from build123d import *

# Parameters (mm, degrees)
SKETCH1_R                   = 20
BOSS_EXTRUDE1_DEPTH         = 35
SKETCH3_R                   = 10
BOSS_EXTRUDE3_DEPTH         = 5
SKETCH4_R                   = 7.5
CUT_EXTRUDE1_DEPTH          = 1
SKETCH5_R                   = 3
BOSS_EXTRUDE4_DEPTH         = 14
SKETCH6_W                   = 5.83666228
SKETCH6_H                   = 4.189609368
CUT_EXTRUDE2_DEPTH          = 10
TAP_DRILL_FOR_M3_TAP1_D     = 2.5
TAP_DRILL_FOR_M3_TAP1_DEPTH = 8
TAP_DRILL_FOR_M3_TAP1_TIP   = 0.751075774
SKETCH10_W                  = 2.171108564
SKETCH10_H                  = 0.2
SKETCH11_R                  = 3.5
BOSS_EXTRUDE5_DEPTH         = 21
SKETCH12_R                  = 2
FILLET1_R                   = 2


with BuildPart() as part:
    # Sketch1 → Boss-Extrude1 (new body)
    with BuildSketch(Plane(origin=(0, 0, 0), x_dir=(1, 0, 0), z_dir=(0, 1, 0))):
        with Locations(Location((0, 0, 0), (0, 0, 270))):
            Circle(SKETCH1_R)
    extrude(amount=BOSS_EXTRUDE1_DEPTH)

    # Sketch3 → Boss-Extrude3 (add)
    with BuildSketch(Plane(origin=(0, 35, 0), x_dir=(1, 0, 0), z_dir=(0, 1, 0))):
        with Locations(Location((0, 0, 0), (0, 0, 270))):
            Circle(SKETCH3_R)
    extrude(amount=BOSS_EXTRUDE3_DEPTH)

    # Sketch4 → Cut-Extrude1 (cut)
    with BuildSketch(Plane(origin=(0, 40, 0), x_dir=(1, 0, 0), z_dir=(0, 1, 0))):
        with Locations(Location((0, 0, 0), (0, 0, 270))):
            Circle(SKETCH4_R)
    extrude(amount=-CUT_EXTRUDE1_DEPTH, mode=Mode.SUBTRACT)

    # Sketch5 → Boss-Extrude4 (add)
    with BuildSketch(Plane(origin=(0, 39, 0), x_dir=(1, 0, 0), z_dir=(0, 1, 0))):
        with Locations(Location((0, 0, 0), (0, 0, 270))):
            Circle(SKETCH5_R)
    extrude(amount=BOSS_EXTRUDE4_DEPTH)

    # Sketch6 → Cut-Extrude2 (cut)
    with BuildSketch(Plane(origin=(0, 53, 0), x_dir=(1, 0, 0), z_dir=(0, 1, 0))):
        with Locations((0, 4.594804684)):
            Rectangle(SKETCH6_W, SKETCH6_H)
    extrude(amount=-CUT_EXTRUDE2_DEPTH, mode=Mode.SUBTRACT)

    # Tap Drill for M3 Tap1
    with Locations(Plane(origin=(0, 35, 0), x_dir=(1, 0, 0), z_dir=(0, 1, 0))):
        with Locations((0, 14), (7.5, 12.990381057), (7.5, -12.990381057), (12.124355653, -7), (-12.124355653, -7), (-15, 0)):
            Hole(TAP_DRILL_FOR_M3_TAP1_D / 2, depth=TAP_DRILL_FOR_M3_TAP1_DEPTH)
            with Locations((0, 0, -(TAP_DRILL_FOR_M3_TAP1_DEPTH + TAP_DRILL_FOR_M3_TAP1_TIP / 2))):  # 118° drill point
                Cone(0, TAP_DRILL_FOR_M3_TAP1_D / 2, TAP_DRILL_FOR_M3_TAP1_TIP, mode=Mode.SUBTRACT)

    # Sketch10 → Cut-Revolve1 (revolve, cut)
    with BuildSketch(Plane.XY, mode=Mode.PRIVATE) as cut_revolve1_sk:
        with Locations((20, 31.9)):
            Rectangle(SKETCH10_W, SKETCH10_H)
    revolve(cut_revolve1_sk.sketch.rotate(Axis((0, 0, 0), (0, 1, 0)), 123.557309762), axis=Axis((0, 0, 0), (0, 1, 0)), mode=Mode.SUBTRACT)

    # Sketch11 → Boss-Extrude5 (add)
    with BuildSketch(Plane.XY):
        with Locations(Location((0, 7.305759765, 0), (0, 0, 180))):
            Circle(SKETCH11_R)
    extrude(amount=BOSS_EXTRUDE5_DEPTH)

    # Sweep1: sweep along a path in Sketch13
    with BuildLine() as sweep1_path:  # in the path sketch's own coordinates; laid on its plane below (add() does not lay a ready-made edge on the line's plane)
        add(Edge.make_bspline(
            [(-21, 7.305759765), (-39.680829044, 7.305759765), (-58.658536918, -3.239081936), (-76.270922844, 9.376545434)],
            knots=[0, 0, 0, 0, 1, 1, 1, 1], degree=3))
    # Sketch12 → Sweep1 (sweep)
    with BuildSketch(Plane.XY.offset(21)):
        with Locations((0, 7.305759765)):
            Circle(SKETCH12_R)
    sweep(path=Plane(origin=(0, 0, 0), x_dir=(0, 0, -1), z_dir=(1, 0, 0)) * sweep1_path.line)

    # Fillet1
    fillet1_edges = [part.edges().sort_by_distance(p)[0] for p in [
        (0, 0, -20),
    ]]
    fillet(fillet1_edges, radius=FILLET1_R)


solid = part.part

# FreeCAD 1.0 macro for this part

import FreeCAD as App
import Part
import Sketcher

V = App.Vector


def edges_at(feature, points):
    """Names of the edges that pass closest to the given points."""
    edges = feature.Shape.Edges
    near = lambda p: min(range(len(edges)), key=lambda i: edges[i].distToShape(Part.Vertex(*p))[0])
    return sorted({f"Edge{near(p) + 1}" for p in points})

doc = App.newDocument("Part")
params = doc.addObject("Spreadsheet::Sheet", "Params")
for row, (alias, value) in enumerate([
    ("sketch1_diameter", "40 mm"),
    ("pad1_length", "35 mm"),
    ("sketch2_diameter", "20 mm"),
    ("pad2_length", "5 mm"),
    ("sketch3_diameter", "15 mm"),
    ("pocket1_length", "1 mm"),
    ("sketch4_diameter", "6 mm"),
    ("pad3_length", "14 mm"),
    ("pocket2_length", "10 mm"),
    ("sketch6_diameter", "2.5 mm"),
    ("hole_diameter", "2.5 mm"),
    ("hole_depth", "8 mm"),
    ("sketch7_height", "0.2 mm"),
    ("groove_angle", "360 deg"),
    ("sketch8_diameter", "7 mm"),
    ("pad4_length", "21 mm"),
    ("sketch9_diameter", "4 mm"),
    ("fillet_radius", "2 mm"),
], start=1):
    params.set(f"A{row}", alias)
    params.set(f"B{row}", "=" + value)
    params.setAlias(f"B{row}", alias)

body = doc.addObject("PartDesign::Body", "Body")

sketch1 = body.newObject("Sketcher::SketchObject", "Sketch")
sketch1.AttachmentSupport = (doc.getObject("XZ_Plane"), [""])
sketch1.MapMode = "FlatFace"
sketch1.addGeometry(Part.Circle(V(0, 0, 0), V(0, 0, 1), 20), False)
sketch1.addConstraint([
    Sketcher.Constraint("Coincident", 0, 3, -1, 1),
    Sketcher.Constraint("Diameter", 0, 40.0),
])
sketch1.setExpression("Constraints[1]", "Params.sketch1_diameter")
pad1 = body.newObject("PartDesign::Pad", "Pad")
pad1.Profile = sketch1
pad1.setExpression("Length", "Params.pad1_length")
pad1.Reversed = True

sketch2 = body.newObject("Sketcher::SketchObject", "Sketch001")
sketch2.AttachmentSupport = (doc.getObject("XZ_Plane"), [""])
sketch2.MapMode = "FlatFace"
sketch2.AttachmentOffset = App.Placement(V(0, 0, -35), App.Rotation())
sketch2.addGeometry(Part.Circle(V(0, 0, 0), V(0, 0, 1), 10), False)
sketch2.addConstraint([
    Sketcher.Constraint("Coincident", 0, 3, -1, 1),
    Sketcher.Constraint("Diameter", 0, 20.0),
])
sketch2.setExpression("Constraints[1]", "Params.sketch2_diameter")
pad2 = body.newObject("PartDesign::Pad", "Pad001")
pad2.Profile = sketch2
pad2.setExpression("Length", "Params.pad2_length")
pad2.Reversed = True

sketch3 = body.newObject("Sketcher::SketchObject", "Sketch002")
sketch3.AttachmentSupport = (doc.getObject("XZ_Plane"), [""])
sketch3.MapMode = "FlatFace"
sketch3.AttachmentOffset = App.Placement(V(0, 0, -40), App.Rotation())
sketch3.addGeometry(Part.Circle(V(0, 0, 0), V(0, 0, 1), 8), False)
sketch3.addConstraint([
    Sketcher.Constraint("Coincident", 0, 3, -1, 1),
    Sketcher.Constraint("Diameter", 0, 15.0),
])
sketch3.setExpression("Constraints[1]", "Params.sketch3_diameter")
pocket1 = body.newObject("PartDesign::Pocket", "Pocket")
pocket1.Profile = sketch3
pocket1.setExpression("Length", "Params.pocket1_length")
pocket1.Reversed = True

sketch4 = body.newObject("Sketcher::SketchObject", "Sketch003")
sketch4.AttachmentSupport = (doc.getObject("XZ_Plane"), [""])
sketch4.MapMode = "FlatFace"
sketch4.AttachmentOffset = App.Placement(V(0, 0, -39), App.Rotation())
sketch4.addGeometry(Part.Circle(V(0, 0, 0), V(0, 0, 1), 3), False)
sketch4.addConstraint([
    Sketcher.Constraint("Coincident", 0, 3, -1, 1),
    Sketcher.Constraint("Diameter", 0, 6.0),
])
sketch4.setExpression("Constraints[1]", "Params.sketch4_diameter")
pad3 = body.newObject("PartDesign::Pad", "Pad002")
pad3.Profile = sketch4
pad3.setExpression("Length", "Params.pad3_length")
pad3.Reversed = True

sketch5 = body.newObject("Sketcher::SketchObject", "Sketch004")
sketch5.AttachmentSupport = (doc.getObject("XZ_Plane"), [""])
sketch5.MapMode = "FlatFace"
sketch5.AttachmentOffset = App.Placement(V(0, 0, -53), App.Rotation())
sketch5.addGeometry([
    Part.LineSegment(V(-2.9, -6.7, 0), V(-2.9, -2.5, 0)),
    Part.LineSegment(V(-2.9, -2.5, 0), V(2.9, -2.5, 0)),
    Part.LineSegment(V(2.9, -2.5, 0), V(2.9, -6.7, 0)),
    Part.LineSegment(V(2.9, -6.7, 0), V(-2.9, -6.7, 0)),
], False)
sketch5.addConstraint([
    Sketcher.Constraint("Coincident", 0, 2, 1, 1),
    Sketcher.Constraint("Coincident", 1, 2, 2, 1),
    Sketcher.Constraint("Coincident", 2, 2, 3, 1),
    Sketcher.Constraint("Coincident", 3, 2, 0, 1),
    Sketcher.Constraint("Vertical", 0),
    Sketcher.Constraint("Horizontal", 1),
    Sketcher.Constraint("Vertical", 2),
    Sketcher.Constraint("Horizontal", 3),
    Sketcher.Constraint("DistanceY", 0, 2, -1, 1, 2.5),
    Sketcher.Constraint("DistanceY", 0, 1, 0, 2, 4.189609),
    Sketcher.Constraint("DistanceX", 1, 1, 1, 2, 5.836662),
    Sketcher.Constraint("DistanceX", 0, 2, -1, 1, 2.918331),
])
pocket2 = body.newObject("PartDesign::Pocket", "Pocket001")
pocket2.Profile = sketch5
pocket2.setExpression("Length", "Params.pocket2_length")
pocket2.Reversed = True

sketch6 = body.newObject("Sketcher::SketchObject", "Sketch005")
sketch6.AttachmentSupport = (doc.getObject("XZ_Plane"), [""])
sketch6.MapMode = "FlatFace"
sketch6.AttachmentOffset = App.Placement(V(0, 0, -35), App.Rotation())
sketch6.addGeometry([
    Part.Circle(V(0, -14, 0), V(0, 0, 1), 1.2),
    Part.Circle(V(7.5, -13, 0), V(0, 0, 1), 1.2),
    Part.Circle(V(7.5, 13, 0), V(0, 0, 1), 1.2),
    Part.Circle(V(12.1, 7, 0), V(0, 0, 1), 1.2),
    Part.Circle(V(-12.1, 7, 0), V(0, 0, 1), 1.2),
    Part.Circle(V(-15, 0, 0), V(0, 0, 1), 1.2),
], False)
sketch6.addConstraint([
    Sketcher.Constraint("Equal", 0, 1),
    Sketcher.Constraint("Equal", 1, 2),
    Sketcher.Constraint("Equal", 2, 3),
    Sketcher.Constraint("Equal", 3, 4),
    Sketcher.Constraint("Equal", 4, 5),
    Sketcher.Constraint("Symmetric", 3, 3, 4, 3, -2),
    Sketcher.Constraint("Symmetric", 1, 3, 2, 3, -1),
    Sketcher.Constraint("PointOnObject", 0, 3, -2),
    Sketcher.Constraint("PointOnObject", 5, 3, -1),
    Sketcher.Constraint("Diameter", 0, 2.5),
    Sketcher.Constraint("DistanceY", 0, 3, -1, 1, 14.0),
    Sketcher.Constraint("DistanceY", -1, 1, 3, 3, 7.0),
    Sketcher.Constraint("DistanceX", 5, 3, -1, 1, 15.0),
    Sketcher.Constraint("DistanceX", -1, 1, 1, 3, 7.5),
    Sketcher.Constraint("DistanceY", 1, 3, -1, 1, 12.990381),
    Sketcher.Constraint("DistanceX", 4, 3, 3, 3, 24.248711),
])
sketch6.setExpression("Constraints[9]", "Params.sketch6_diameter")
doc.recompute()
hole = body.newObject("PartDesign::Hole", "Hole")
hole.Profile = sketch6
hole.ThreadType = "None"
hole.setExpression("Diameter", "Params.hole_diameter")
hole.DepthType = "Dimension"
hole.setExpression("Depth", "Params.hole_depth")
hole.DrillPoint = "Angled"
hole.DrillPointAngle = 118
hole.Reversed = True

sketch7 = body.newObject("Sketcher::SketchObject", "Sketch006")
sketch7.AttachmentSupport = (doc.getObject("XY_Plane"), [""])
sketch7.MapMode = "FlatFace"
sketch7.addGeometry([
    Part.LineSegment(V(18.91, 32, 0), V(18.91, 31.8, 0)),
    Part.LineSegment(V(18.91, 31.8, 0), V(21.09, 31.8, 0)),
    Part.LineSegment(V(21.09, 31.8, 0), V(21.09, 32, 0)),
    Part.LineSegment(V(21.09, 32, 0), V(18.91, 32, 0)),
], False)
sketch7.addConstraint([
    Sketcher.Constraint("Coincident", 0, 2, 1, 1),
    Sketcher.Constraint("Coincident", 1, 2, 2, 1),
    Sketcher.Constraint("Coincident", 2, 2, 3, 1),
    Sketcher.Constraint("Coincident", 3, 2, 0, 1),
    Sketcher.Constraint("Vertical", 0),
    Sketcher.Constraint("Horizontal", 1),
    Sketcher.Constraint("Vertical", 2),
    Sketcher.Constraint("Horizontal", 3),
    Sketcher.Constraint("DistanceY", 0, 2, 0, 1, 0.2),
    Sketcher.Constraint("DistanceY", -1, 1, 2, 2, 32.0),
    Sketcher.Constraint("DistanceX", 1, 1, 1, 2, 2.171109),
    Sketcher.Constraint("DistanceX", -1, 1, 0, 2, 18.914446),
])
sketch7.setExpression("Constraints[8]", "Params.sketch7_height")
groove = body.newObject("PartDesign::Groove", "Groove")
groove.Profile = sketch7
groove.ReferenceAxis = (sketch7, ["V_Axis"])
groove.setExpression("Angle", "Params.groove_angle")

sketch8 = body.newObject("Sketcher::SketchObject", "Sketch007")
sketch8.AttachmentSupport = (doc.getObject("XY_Plane"), [""])
sketch8.MapMode = "FlatFace"
sketch8.addGeometry(Part.Circle(V(0, 7.3, 0), V(0, 0, 1), 3.5), False)
sketch8.addConstraint([
    Sketcher.Constraint("PointOnObject", 0, 3, -2),
    Sketcher.Constraint("Diameter", 0, 7.0),
    Sketcher.Constraint("DistanceY", -1, 1, 0, 3, 7.30576),
])
sketch8.setExpression("Constraints[1]", "Params.sketch8_diameter")
pad4 = body.newObject("PartDesign::Pad", "Pad003")
pad4.Profile = sketch8
pad4.setExpression("Length", "Params.pad4_length")

sketch9 = body.newObject("Sketcher::SketchObject", "Sketch008")
sketch9.AttachmentSupport = (doc.getObject("XY_Plane"), [""])
sketch9.MapMode = "FlatFace"
sketch9.AttachmentOffset = App.Placement(V(0, 0, 21), App.Rotation())
sketch9.addGeometry(Part.Circle(V(0, 7.3, 0), V(0, 0, 1), 2), False)
sketch9.addConstraint([
    Sketcher.Constraint("PointOnObject", 0, 3, -2),
    Sketcher.Constraint("Diameter", 0, 4.0),
    Sketcher.Constraint("DistanceY", -1, 1, 0, 3, 7.30576),
])
sketch9.setExpression("Constraints[1]", "Params.sketch9_diameter")

sketch10 = body.newObject("Sketcher::SketchObject", "Sketch009")
sketch10.AttachmentSupport = (doc.getObject("YZ_Plane"), [""])
sketch10.MapMode = "FlatFace"
sketch10.addGeometry(Part.BSplineCurve([V(7.30576, 21, 0), V(7.30576, 39.680829, 0), V(-3.239082, 58.658537, 0), V(9.376545, 76.270923, 0)], [4, 4], [0, 1], False, 3, [1, 1, 1, 1], False), False)
sketch10.addConstraint(Sketcher.Constraint("Block", 0))
doc.recompute()

additivepipe = body.newObject("PartDesign::AdditivePipe", "AdditivePipe")
additivepipe.Profile = sketch9
additivepipe.Spine = (sketch10, ["Edge1"])
doc.recompute()

fillet = body.newObject("PartDesign::Fillet", "Fillet")
fillet.Base = (additivepipe, edges_at(additivepipe, [(0, 0, -20)]))
fillet.setExpression("Radius", "Params.fillet_radius")

doc.recompute()
